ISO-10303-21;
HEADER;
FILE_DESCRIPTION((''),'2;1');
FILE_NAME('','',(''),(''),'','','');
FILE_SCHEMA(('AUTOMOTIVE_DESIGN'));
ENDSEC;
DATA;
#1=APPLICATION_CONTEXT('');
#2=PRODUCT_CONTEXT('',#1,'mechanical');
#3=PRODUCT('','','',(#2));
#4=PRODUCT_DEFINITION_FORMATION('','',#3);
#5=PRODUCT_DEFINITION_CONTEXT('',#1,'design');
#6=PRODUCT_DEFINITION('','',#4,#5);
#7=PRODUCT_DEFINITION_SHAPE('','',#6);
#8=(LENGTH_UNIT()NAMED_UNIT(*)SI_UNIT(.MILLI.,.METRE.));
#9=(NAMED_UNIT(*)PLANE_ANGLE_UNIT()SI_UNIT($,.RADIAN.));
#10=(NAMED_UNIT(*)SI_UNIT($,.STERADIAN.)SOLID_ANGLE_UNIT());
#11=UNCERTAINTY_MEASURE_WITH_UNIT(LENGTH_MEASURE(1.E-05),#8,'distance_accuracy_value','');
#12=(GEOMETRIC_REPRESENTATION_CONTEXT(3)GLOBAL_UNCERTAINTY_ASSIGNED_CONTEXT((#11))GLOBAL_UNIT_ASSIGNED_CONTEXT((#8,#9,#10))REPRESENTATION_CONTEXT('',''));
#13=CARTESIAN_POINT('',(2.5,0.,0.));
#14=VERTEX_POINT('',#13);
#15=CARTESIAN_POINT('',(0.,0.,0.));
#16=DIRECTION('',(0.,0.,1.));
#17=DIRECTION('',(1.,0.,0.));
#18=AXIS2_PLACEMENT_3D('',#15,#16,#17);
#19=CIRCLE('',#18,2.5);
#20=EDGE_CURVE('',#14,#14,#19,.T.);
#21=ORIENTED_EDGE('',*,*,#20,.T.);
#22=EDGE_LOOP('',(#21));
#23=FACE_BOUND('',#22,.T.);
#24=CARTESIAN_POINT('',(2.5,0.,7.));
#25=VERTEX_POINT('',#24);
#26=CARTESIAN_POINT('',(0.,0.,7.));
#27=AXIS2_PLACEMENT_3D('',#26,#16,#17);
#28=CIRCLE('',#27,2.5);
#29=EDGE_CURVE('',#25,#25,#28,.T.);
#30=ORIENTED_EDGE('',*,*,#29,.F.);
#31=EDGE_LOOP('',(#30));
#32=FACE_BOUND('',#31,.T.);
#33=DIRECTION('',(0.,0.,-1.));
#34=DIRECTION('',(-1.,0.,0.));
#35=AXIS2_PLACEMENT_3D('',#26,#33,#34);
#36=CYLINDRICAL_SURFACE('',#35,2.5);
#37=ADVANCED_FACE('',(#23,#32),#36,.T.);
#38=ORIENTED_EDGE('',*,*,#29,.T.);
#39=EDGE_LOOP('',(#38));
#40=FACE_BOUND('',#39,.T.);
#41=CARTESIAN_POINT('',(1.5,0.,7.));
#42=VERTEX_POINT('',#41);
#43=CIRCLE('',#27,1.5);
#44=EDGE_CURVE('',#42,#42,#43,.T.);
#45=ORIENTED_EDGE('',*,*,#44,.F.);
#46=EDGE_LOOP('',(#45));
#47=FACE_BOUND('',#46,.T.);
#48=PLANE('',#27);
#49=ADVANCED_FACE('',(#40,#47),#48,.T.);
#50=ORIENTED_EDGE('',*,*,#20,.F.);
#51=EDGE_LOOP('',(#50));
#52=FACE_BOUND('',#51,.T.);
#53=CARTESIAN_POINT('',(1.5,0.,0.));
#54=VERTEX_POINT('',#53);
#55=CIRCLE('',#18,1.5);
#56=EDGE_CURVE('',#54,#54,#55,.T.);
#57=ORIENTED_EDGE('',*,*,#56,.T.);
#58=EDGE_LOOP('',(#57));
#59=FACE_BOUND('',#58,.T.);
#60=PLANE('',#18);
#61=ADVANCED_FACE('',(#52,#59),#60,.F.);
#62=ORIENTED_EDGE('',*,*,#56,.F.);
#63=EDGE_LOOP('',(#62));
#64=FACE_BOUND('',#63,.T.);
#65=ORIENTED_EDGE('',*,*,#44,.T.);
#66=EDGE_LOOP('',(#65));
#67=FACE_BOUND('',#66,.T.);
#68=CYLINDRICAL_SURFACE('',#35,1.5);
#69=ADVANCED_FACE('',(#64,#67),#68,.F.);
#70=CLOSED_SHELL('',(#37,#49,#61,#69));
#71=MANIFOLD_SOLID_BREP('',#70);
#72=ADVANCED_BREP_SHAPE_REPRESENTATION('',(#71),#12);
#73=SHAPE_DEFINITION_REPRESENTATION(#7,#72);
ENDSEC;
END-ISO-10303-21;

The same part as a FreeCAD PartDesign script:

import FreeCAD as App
import Part
import Sketcher

V = App.Vector

doc = App.newDocument("Part")
body = doc.addObject("PartDesign::Body", "Body")

# Sketch on XY plane
sketch1 = body.newObject("Sketcher::SketchObject", "Sketch")
sketch1.AttachmentSupport = (doc.getObject("XY_Plane"), [""])
sketch1.MapMode = "FlatFace"
sketch1.addGeometry([
    Part.Circle(V(0, 0, 0), V(0, 0, 1), 2.5),
    Part.Circle(V(0, 0, 0), V(0, 0, 1), 1.5),
], False)
sketch1.addConstraint([
    Sketcher.Constraint("Coincident", 0, 3, -1, 1),
    Sketcher.Constraint("Coincident", 1, 3, -1, 1),
    Sketcher.Constraint("Diameter", 0, 5.0),
    Sketcher.Constraint("Diameter", 1, 3.0),
])
pad1 = body.newObject("PartDesign::Pad", "Pad")
pad1.Profile = sketch1
pad1.Length = 7

doc.recompute()
